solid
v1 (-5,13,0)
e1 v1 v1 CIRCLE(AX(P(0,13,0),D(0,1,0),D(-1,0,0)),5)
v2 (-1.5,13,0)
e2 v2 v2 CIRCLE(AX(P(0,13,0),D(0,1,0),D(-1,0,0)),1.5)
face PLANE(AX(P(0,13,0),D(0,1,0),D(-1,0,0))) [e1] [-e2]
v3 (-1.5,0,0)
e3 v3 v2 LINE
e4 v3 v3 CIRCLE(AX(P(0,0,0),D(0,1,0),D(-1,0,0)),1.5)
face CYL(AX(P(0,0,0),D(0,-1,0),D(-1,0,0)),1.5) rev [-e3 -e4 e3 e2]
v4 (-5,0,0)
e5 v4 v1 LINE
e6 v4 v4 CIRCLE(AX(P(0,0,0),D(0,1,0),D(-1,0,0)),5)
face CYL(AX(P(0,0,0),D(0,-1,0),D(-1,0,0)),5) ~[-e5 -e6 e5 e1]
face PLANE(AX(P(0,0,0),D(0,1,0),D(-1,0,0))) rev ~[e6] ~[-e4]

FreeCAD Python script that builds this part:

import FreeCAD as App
import Part
import Sketcher
from FreeCAD import Vector
Q = App.Units.Quantity

doc = App.newDocument("Part")
params = doc.addObject("Spreadsheet::Sheet", "Params")
for row, (alias, value) in enumerate([
    ("sketch1_diameter", "10 mm"),
    ("sketch1_diameter2", "3 mm"),
    ("pad1_length", "13 mm"),
], start=1):
    params.set(f"A{row}", alias)
    params.set(f"B{row}", "=" + value)
    params.setAlias(f"B{row}", alias)

body = doc.addObject("PartDesign::Body", "Body")

sketch1 = doc.addObject("Sketcher::SketchObject", "Sketch")
body.addObject(sketch1)
sketch1.AttachmentSupport = (doc.XZ_Plane, [""])
sketch1.MapMode = "FlatFace"
sketch1.addGeometry([
    Part.Circle(Vector(0, 0, 0), Vector(0, 0, 1), 5),
    Part.Circle(Vector(0, 0, 0), Vector(0, 0, 1), 1.5),
], False)
sketch1.addConstraint([
    Sketcher.Constraint("Coincident", 0, 3, -1, 1),
    Sketcher.Constraint("Coincident", 1, 3, -1, 1),
    Sketcher.Constraint("Diameter", 0, Q("10 mm")),
    Sketcher.Constraint("Diameter", 1, Q("3 mm")),
])
sketch1.setExpression("Constraints[2]", "Params.sketch1_diameter")
sketch1.setExpression("Constraints[3]", "Params.sketch1_diameter2")
pad1 = doc.addObject("PartDesign::Pad", "Pad")
body.addObject(pad1)
pad1.Profile = sketch1
pad1.setExpression("Length", "Params.pad1_length")
pad1.Reversed = True

doc.recompute()
